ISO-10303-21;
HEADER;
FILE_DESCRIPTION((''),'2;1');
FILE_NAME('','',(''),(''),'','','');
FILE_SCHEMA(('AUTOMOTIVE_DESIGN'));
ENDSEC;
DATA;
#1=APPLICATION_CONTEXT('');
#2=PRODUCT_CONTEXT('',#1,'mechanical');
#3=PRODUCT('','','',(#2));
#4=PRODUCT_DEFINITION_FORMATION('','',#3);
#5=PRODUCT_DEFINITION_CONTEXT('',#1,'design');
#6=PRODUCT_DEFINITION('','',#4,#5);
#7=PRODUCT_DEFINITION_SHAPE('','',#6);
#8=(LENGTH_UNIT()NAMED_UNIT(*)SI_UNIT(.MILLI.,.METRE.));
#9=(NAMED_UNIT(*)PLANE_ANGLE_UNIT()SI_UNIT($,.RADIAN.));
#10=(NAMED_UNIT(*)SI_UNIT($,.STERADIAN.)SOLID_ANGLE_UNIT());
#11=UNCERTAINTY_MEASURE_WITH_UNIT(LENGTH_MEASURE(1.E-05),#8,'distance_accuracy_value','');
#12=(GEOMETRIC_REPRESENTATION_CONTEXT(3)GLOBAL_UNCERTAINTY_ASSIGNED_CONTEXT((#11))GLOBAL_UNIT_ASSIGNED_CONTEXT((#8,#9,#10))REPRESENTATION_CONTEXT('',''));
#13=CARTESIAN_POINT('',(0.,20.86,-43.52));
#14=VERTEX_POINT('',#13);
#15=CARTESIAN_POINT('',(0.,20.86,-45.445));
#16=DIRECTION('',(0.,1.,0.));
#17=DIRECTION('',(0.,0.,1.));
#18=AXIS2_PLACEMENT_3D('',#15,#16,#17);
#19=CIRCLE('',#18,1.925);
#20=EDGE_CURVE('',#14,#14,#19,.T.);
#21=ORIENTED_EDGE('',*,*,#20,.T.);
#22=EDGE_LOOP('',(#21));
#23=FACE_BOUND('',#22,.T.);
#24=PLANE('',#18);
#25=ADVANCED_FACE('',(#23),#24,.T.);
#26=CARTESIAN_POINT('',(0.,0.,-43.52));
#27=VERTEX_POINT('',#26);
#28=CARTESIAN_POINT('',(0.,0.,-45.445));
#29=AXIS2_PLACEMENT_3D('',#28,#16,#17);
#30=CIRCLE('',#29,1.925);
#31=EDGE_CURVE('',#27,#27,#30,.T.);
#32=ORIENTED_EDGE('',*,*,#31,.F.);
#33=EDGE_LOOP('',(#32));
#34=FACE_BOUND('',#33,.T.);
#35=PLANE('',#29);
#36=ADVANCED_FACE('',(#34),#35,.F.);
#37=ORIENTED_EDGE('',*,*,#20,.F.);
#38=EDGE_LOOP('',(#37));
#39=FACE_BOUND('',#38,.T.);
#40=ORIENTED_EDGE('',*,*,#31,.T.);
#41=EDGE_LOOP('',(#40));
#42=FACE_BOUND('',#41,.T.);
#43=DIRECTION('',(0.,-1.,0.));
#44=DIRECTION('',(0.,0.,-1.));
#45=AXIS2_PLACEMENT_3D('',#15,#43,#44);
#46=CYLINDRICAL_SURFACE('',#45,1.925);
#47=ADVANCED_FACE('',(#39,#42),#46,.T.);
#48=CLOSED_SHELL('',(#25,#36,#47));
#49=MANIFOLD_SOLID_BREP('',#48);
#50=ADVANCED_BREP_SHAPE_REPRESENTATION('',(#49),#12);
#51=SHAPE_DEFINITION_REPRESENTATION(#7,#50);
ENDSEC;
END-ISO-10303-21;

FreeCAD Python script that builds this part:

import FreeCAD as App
import Part
import Sketcher

V = App.Vector

doc = App.newDocument("Part")
params = doc.addObject("Spreadsheet::Sheet", "Params")
for row, (alias, value) in enumerate([
    ("sketch1_diameter", "3.85 mm"),
    ("pad1_length", "20.86 mm"),
], start=1):
    params.set(f"A{row}", alias)
    params.set(f"B{row}", "=" + value)
    params.setAlias(f"B{row}", alias)

body = doc.addObject("PartDesign::Body", "Body")

sketch1 = doc.addObject("Sketcher::SketchObject", "Sketch")
body.addObject(sketch1)
sketch1.AttachmentSupport = (doc.XZ_Plane, [""])
sketch1.MapMode = "FlatFace"
sketch1.addGeometry(Part.Circle(V(0, -45.4, 0), V(0, 0, 1), 1.9), False)
sketch1.addConstraint(Sketcher.Constraint("PointOnObject", 0, 3, -2))
sketch1.addConstraint(Sketcher.Constraint("Diameter", 0, 3.85))
sketch1.addConstraint(Sketcher.Constraint("DistanceY", 0, 3, -1, 1, 45.445))
sketch1.setExpression("Constraints[1]", "Params.sketch1_diameter")
pad1 = doc.addObject("PartDesign::Pad", "Pad")
body.addObject(pad1)
pad1.Profile = sketch1
pad1.setExpression("Length", "Params.pad1_length")
pad1.Reversed = True

doc.recompute()
